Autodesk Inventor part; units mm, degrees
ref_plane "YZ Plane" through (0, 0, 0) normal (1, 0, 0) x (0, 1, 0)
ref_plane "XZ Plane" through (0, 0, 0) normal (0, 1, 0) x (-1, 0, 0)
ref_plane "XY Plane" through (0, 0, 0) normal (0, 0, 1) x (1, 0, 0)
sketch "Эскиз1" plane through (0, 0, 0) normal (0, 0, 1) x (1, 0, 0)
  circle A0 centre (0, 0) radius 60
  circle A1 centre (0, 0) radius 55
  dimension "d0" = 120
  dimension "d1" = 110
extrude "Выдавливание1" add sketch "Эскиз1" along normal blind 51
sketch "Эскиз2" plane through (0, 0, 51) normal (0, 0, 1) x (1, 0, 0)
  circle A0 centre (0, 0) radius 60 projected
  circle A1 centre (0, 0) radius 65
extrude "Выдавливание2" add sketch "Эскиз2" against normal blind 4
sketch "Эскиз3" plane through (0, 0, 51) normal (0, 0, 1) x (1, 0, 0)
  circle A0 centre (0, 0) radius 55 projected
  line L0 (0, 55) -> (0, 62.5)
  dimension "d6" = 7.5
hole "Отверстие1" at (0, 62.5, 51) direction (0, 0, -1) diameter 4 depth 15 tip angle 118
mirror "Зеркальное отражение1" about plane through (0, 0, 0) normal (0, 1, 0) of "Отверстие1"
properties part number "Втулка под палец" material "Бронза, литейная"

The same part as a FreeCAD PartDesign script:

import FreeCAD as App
import Part
import Sketcher

doc = App.newDocument("Part")
body = doc.addObject("PartDesign::Body", "Body")

# Sketch on XY plane
sketch1 = body.newObject("Sketcher::SketchObject", "Sketch")
sketch1.AttachmentSupport = (doc.getObject("XY_Plane"), [""])
sketch1.MapMode = "FlatFace"
sketch1.addGeometry(Part.Circle(App.Vector(0, 0, 0), App.Vector(0, 0, 1), 60), False)
sketch1.addGeometry(Part.Circle(App.Vector(0, 0, 0), App.Vector(0, 0, 1), 55), False)
sketch1.addConstraint(Sketcher.Constraint("Coincident", 0, 3, -1, 1))
sketch1.addConstraint(Sketcher.Constraint("Coincident", 1, 3, -1, 1))
sketch1.addConstraint(Sketcher.Constraint("Diameter", 0, 120.0))
sketch1.addConstraint(Sketcher.Constraint("Diameter", 1, 110.0))
pad1 = body.newObject("PartDesign::Pad", "Pad")
pad1.Profile = sketch1
pad1.Length = 51

# Sketch on XY plane
sketch2 = body.newObject("Sketcher::SketchObject", "Sketch001")
sketch2.AttachmentSupport = (doc.getObject("XY_Plane"), [""])
sketch2.MapMode = "FlatFace"
sketch2.AttachmentOffset = App.Placement(App.Vector(0, 0, 51), App.Rotation())
sketch2.addGeometry(Part.Circle(App.Vector(0, 0, 0), App.Vector(0, 0, 1), 65), False)
sketch2.addGeometry(Part.Circle(App.Vector(0, 0, 0), App.Vector(0, 0, 1), 60), False)
sketch2.addConstraint(Sketcher.Constraint("Coincident", 0, 3, -1, 1))
sketch2.addConstraint(Sketcher.Constraint("Coincident", 1, 3, -1, 1))
sketch2.addConstraint(Sketcher.Constraint("Diameter", 0, 130.0))
sketch2.addConstraint(Sketcher.Constraint("Diameter", 1, 120.0))
pad2 = body.newObject("PartDesign::Pad", "Pad001")
pad2.Profile = sketch2
pad2.Length = 4
pad2.Reversed = True

# Sketch on XY plane
sketch3 = body.newObject("Sketcher::SketchObject", "Sketch002")
sketch3.AttachmentSupport = (doc.getObject("XY_Plane"), [""])
sketch3.MapMode = "FlatFace"
sketch3.AttachmentOffset = App.Placement(App.Vector(0, 0, 51), App.Rotation())
sketch3.addGeometry(Part.Circle(App.Vector(0, 62.5, 0), App.Vector(0, 0, 1), 2), False)
sketch3.addConstraint(Sketcher.Constraint("PointOnObject", 0, 3, -2))
sketch3.addConstraint(Sketcher.Constraint("Diameter", 0, 4.0))
sketch3.addConstraint(Sketcher.Constraint("DistanceY", -1, 1, 0, 3, 62.5))
doc.recompute()
hole = body.newObject("PartDesign::Hole", "Hole")
hole.Profile = sketch3
hole.ThreadType = "None"
hole.Diameter = 4
hole.DepthType = "Dimension"
hole.Depth = 15
hole.DrillPoint = "Angled"
hole.DrillPointAngle = 118
doc.recompute()

mirrored = body.newObject("PartDesign::Mirrored", "Mirrored")
mirrored.Originals = [hole]
mirrored.MirrorPlane = (doc.getObject("XZ_Plane"), [""])
body.Tip = mirrored

doc.recompute()
